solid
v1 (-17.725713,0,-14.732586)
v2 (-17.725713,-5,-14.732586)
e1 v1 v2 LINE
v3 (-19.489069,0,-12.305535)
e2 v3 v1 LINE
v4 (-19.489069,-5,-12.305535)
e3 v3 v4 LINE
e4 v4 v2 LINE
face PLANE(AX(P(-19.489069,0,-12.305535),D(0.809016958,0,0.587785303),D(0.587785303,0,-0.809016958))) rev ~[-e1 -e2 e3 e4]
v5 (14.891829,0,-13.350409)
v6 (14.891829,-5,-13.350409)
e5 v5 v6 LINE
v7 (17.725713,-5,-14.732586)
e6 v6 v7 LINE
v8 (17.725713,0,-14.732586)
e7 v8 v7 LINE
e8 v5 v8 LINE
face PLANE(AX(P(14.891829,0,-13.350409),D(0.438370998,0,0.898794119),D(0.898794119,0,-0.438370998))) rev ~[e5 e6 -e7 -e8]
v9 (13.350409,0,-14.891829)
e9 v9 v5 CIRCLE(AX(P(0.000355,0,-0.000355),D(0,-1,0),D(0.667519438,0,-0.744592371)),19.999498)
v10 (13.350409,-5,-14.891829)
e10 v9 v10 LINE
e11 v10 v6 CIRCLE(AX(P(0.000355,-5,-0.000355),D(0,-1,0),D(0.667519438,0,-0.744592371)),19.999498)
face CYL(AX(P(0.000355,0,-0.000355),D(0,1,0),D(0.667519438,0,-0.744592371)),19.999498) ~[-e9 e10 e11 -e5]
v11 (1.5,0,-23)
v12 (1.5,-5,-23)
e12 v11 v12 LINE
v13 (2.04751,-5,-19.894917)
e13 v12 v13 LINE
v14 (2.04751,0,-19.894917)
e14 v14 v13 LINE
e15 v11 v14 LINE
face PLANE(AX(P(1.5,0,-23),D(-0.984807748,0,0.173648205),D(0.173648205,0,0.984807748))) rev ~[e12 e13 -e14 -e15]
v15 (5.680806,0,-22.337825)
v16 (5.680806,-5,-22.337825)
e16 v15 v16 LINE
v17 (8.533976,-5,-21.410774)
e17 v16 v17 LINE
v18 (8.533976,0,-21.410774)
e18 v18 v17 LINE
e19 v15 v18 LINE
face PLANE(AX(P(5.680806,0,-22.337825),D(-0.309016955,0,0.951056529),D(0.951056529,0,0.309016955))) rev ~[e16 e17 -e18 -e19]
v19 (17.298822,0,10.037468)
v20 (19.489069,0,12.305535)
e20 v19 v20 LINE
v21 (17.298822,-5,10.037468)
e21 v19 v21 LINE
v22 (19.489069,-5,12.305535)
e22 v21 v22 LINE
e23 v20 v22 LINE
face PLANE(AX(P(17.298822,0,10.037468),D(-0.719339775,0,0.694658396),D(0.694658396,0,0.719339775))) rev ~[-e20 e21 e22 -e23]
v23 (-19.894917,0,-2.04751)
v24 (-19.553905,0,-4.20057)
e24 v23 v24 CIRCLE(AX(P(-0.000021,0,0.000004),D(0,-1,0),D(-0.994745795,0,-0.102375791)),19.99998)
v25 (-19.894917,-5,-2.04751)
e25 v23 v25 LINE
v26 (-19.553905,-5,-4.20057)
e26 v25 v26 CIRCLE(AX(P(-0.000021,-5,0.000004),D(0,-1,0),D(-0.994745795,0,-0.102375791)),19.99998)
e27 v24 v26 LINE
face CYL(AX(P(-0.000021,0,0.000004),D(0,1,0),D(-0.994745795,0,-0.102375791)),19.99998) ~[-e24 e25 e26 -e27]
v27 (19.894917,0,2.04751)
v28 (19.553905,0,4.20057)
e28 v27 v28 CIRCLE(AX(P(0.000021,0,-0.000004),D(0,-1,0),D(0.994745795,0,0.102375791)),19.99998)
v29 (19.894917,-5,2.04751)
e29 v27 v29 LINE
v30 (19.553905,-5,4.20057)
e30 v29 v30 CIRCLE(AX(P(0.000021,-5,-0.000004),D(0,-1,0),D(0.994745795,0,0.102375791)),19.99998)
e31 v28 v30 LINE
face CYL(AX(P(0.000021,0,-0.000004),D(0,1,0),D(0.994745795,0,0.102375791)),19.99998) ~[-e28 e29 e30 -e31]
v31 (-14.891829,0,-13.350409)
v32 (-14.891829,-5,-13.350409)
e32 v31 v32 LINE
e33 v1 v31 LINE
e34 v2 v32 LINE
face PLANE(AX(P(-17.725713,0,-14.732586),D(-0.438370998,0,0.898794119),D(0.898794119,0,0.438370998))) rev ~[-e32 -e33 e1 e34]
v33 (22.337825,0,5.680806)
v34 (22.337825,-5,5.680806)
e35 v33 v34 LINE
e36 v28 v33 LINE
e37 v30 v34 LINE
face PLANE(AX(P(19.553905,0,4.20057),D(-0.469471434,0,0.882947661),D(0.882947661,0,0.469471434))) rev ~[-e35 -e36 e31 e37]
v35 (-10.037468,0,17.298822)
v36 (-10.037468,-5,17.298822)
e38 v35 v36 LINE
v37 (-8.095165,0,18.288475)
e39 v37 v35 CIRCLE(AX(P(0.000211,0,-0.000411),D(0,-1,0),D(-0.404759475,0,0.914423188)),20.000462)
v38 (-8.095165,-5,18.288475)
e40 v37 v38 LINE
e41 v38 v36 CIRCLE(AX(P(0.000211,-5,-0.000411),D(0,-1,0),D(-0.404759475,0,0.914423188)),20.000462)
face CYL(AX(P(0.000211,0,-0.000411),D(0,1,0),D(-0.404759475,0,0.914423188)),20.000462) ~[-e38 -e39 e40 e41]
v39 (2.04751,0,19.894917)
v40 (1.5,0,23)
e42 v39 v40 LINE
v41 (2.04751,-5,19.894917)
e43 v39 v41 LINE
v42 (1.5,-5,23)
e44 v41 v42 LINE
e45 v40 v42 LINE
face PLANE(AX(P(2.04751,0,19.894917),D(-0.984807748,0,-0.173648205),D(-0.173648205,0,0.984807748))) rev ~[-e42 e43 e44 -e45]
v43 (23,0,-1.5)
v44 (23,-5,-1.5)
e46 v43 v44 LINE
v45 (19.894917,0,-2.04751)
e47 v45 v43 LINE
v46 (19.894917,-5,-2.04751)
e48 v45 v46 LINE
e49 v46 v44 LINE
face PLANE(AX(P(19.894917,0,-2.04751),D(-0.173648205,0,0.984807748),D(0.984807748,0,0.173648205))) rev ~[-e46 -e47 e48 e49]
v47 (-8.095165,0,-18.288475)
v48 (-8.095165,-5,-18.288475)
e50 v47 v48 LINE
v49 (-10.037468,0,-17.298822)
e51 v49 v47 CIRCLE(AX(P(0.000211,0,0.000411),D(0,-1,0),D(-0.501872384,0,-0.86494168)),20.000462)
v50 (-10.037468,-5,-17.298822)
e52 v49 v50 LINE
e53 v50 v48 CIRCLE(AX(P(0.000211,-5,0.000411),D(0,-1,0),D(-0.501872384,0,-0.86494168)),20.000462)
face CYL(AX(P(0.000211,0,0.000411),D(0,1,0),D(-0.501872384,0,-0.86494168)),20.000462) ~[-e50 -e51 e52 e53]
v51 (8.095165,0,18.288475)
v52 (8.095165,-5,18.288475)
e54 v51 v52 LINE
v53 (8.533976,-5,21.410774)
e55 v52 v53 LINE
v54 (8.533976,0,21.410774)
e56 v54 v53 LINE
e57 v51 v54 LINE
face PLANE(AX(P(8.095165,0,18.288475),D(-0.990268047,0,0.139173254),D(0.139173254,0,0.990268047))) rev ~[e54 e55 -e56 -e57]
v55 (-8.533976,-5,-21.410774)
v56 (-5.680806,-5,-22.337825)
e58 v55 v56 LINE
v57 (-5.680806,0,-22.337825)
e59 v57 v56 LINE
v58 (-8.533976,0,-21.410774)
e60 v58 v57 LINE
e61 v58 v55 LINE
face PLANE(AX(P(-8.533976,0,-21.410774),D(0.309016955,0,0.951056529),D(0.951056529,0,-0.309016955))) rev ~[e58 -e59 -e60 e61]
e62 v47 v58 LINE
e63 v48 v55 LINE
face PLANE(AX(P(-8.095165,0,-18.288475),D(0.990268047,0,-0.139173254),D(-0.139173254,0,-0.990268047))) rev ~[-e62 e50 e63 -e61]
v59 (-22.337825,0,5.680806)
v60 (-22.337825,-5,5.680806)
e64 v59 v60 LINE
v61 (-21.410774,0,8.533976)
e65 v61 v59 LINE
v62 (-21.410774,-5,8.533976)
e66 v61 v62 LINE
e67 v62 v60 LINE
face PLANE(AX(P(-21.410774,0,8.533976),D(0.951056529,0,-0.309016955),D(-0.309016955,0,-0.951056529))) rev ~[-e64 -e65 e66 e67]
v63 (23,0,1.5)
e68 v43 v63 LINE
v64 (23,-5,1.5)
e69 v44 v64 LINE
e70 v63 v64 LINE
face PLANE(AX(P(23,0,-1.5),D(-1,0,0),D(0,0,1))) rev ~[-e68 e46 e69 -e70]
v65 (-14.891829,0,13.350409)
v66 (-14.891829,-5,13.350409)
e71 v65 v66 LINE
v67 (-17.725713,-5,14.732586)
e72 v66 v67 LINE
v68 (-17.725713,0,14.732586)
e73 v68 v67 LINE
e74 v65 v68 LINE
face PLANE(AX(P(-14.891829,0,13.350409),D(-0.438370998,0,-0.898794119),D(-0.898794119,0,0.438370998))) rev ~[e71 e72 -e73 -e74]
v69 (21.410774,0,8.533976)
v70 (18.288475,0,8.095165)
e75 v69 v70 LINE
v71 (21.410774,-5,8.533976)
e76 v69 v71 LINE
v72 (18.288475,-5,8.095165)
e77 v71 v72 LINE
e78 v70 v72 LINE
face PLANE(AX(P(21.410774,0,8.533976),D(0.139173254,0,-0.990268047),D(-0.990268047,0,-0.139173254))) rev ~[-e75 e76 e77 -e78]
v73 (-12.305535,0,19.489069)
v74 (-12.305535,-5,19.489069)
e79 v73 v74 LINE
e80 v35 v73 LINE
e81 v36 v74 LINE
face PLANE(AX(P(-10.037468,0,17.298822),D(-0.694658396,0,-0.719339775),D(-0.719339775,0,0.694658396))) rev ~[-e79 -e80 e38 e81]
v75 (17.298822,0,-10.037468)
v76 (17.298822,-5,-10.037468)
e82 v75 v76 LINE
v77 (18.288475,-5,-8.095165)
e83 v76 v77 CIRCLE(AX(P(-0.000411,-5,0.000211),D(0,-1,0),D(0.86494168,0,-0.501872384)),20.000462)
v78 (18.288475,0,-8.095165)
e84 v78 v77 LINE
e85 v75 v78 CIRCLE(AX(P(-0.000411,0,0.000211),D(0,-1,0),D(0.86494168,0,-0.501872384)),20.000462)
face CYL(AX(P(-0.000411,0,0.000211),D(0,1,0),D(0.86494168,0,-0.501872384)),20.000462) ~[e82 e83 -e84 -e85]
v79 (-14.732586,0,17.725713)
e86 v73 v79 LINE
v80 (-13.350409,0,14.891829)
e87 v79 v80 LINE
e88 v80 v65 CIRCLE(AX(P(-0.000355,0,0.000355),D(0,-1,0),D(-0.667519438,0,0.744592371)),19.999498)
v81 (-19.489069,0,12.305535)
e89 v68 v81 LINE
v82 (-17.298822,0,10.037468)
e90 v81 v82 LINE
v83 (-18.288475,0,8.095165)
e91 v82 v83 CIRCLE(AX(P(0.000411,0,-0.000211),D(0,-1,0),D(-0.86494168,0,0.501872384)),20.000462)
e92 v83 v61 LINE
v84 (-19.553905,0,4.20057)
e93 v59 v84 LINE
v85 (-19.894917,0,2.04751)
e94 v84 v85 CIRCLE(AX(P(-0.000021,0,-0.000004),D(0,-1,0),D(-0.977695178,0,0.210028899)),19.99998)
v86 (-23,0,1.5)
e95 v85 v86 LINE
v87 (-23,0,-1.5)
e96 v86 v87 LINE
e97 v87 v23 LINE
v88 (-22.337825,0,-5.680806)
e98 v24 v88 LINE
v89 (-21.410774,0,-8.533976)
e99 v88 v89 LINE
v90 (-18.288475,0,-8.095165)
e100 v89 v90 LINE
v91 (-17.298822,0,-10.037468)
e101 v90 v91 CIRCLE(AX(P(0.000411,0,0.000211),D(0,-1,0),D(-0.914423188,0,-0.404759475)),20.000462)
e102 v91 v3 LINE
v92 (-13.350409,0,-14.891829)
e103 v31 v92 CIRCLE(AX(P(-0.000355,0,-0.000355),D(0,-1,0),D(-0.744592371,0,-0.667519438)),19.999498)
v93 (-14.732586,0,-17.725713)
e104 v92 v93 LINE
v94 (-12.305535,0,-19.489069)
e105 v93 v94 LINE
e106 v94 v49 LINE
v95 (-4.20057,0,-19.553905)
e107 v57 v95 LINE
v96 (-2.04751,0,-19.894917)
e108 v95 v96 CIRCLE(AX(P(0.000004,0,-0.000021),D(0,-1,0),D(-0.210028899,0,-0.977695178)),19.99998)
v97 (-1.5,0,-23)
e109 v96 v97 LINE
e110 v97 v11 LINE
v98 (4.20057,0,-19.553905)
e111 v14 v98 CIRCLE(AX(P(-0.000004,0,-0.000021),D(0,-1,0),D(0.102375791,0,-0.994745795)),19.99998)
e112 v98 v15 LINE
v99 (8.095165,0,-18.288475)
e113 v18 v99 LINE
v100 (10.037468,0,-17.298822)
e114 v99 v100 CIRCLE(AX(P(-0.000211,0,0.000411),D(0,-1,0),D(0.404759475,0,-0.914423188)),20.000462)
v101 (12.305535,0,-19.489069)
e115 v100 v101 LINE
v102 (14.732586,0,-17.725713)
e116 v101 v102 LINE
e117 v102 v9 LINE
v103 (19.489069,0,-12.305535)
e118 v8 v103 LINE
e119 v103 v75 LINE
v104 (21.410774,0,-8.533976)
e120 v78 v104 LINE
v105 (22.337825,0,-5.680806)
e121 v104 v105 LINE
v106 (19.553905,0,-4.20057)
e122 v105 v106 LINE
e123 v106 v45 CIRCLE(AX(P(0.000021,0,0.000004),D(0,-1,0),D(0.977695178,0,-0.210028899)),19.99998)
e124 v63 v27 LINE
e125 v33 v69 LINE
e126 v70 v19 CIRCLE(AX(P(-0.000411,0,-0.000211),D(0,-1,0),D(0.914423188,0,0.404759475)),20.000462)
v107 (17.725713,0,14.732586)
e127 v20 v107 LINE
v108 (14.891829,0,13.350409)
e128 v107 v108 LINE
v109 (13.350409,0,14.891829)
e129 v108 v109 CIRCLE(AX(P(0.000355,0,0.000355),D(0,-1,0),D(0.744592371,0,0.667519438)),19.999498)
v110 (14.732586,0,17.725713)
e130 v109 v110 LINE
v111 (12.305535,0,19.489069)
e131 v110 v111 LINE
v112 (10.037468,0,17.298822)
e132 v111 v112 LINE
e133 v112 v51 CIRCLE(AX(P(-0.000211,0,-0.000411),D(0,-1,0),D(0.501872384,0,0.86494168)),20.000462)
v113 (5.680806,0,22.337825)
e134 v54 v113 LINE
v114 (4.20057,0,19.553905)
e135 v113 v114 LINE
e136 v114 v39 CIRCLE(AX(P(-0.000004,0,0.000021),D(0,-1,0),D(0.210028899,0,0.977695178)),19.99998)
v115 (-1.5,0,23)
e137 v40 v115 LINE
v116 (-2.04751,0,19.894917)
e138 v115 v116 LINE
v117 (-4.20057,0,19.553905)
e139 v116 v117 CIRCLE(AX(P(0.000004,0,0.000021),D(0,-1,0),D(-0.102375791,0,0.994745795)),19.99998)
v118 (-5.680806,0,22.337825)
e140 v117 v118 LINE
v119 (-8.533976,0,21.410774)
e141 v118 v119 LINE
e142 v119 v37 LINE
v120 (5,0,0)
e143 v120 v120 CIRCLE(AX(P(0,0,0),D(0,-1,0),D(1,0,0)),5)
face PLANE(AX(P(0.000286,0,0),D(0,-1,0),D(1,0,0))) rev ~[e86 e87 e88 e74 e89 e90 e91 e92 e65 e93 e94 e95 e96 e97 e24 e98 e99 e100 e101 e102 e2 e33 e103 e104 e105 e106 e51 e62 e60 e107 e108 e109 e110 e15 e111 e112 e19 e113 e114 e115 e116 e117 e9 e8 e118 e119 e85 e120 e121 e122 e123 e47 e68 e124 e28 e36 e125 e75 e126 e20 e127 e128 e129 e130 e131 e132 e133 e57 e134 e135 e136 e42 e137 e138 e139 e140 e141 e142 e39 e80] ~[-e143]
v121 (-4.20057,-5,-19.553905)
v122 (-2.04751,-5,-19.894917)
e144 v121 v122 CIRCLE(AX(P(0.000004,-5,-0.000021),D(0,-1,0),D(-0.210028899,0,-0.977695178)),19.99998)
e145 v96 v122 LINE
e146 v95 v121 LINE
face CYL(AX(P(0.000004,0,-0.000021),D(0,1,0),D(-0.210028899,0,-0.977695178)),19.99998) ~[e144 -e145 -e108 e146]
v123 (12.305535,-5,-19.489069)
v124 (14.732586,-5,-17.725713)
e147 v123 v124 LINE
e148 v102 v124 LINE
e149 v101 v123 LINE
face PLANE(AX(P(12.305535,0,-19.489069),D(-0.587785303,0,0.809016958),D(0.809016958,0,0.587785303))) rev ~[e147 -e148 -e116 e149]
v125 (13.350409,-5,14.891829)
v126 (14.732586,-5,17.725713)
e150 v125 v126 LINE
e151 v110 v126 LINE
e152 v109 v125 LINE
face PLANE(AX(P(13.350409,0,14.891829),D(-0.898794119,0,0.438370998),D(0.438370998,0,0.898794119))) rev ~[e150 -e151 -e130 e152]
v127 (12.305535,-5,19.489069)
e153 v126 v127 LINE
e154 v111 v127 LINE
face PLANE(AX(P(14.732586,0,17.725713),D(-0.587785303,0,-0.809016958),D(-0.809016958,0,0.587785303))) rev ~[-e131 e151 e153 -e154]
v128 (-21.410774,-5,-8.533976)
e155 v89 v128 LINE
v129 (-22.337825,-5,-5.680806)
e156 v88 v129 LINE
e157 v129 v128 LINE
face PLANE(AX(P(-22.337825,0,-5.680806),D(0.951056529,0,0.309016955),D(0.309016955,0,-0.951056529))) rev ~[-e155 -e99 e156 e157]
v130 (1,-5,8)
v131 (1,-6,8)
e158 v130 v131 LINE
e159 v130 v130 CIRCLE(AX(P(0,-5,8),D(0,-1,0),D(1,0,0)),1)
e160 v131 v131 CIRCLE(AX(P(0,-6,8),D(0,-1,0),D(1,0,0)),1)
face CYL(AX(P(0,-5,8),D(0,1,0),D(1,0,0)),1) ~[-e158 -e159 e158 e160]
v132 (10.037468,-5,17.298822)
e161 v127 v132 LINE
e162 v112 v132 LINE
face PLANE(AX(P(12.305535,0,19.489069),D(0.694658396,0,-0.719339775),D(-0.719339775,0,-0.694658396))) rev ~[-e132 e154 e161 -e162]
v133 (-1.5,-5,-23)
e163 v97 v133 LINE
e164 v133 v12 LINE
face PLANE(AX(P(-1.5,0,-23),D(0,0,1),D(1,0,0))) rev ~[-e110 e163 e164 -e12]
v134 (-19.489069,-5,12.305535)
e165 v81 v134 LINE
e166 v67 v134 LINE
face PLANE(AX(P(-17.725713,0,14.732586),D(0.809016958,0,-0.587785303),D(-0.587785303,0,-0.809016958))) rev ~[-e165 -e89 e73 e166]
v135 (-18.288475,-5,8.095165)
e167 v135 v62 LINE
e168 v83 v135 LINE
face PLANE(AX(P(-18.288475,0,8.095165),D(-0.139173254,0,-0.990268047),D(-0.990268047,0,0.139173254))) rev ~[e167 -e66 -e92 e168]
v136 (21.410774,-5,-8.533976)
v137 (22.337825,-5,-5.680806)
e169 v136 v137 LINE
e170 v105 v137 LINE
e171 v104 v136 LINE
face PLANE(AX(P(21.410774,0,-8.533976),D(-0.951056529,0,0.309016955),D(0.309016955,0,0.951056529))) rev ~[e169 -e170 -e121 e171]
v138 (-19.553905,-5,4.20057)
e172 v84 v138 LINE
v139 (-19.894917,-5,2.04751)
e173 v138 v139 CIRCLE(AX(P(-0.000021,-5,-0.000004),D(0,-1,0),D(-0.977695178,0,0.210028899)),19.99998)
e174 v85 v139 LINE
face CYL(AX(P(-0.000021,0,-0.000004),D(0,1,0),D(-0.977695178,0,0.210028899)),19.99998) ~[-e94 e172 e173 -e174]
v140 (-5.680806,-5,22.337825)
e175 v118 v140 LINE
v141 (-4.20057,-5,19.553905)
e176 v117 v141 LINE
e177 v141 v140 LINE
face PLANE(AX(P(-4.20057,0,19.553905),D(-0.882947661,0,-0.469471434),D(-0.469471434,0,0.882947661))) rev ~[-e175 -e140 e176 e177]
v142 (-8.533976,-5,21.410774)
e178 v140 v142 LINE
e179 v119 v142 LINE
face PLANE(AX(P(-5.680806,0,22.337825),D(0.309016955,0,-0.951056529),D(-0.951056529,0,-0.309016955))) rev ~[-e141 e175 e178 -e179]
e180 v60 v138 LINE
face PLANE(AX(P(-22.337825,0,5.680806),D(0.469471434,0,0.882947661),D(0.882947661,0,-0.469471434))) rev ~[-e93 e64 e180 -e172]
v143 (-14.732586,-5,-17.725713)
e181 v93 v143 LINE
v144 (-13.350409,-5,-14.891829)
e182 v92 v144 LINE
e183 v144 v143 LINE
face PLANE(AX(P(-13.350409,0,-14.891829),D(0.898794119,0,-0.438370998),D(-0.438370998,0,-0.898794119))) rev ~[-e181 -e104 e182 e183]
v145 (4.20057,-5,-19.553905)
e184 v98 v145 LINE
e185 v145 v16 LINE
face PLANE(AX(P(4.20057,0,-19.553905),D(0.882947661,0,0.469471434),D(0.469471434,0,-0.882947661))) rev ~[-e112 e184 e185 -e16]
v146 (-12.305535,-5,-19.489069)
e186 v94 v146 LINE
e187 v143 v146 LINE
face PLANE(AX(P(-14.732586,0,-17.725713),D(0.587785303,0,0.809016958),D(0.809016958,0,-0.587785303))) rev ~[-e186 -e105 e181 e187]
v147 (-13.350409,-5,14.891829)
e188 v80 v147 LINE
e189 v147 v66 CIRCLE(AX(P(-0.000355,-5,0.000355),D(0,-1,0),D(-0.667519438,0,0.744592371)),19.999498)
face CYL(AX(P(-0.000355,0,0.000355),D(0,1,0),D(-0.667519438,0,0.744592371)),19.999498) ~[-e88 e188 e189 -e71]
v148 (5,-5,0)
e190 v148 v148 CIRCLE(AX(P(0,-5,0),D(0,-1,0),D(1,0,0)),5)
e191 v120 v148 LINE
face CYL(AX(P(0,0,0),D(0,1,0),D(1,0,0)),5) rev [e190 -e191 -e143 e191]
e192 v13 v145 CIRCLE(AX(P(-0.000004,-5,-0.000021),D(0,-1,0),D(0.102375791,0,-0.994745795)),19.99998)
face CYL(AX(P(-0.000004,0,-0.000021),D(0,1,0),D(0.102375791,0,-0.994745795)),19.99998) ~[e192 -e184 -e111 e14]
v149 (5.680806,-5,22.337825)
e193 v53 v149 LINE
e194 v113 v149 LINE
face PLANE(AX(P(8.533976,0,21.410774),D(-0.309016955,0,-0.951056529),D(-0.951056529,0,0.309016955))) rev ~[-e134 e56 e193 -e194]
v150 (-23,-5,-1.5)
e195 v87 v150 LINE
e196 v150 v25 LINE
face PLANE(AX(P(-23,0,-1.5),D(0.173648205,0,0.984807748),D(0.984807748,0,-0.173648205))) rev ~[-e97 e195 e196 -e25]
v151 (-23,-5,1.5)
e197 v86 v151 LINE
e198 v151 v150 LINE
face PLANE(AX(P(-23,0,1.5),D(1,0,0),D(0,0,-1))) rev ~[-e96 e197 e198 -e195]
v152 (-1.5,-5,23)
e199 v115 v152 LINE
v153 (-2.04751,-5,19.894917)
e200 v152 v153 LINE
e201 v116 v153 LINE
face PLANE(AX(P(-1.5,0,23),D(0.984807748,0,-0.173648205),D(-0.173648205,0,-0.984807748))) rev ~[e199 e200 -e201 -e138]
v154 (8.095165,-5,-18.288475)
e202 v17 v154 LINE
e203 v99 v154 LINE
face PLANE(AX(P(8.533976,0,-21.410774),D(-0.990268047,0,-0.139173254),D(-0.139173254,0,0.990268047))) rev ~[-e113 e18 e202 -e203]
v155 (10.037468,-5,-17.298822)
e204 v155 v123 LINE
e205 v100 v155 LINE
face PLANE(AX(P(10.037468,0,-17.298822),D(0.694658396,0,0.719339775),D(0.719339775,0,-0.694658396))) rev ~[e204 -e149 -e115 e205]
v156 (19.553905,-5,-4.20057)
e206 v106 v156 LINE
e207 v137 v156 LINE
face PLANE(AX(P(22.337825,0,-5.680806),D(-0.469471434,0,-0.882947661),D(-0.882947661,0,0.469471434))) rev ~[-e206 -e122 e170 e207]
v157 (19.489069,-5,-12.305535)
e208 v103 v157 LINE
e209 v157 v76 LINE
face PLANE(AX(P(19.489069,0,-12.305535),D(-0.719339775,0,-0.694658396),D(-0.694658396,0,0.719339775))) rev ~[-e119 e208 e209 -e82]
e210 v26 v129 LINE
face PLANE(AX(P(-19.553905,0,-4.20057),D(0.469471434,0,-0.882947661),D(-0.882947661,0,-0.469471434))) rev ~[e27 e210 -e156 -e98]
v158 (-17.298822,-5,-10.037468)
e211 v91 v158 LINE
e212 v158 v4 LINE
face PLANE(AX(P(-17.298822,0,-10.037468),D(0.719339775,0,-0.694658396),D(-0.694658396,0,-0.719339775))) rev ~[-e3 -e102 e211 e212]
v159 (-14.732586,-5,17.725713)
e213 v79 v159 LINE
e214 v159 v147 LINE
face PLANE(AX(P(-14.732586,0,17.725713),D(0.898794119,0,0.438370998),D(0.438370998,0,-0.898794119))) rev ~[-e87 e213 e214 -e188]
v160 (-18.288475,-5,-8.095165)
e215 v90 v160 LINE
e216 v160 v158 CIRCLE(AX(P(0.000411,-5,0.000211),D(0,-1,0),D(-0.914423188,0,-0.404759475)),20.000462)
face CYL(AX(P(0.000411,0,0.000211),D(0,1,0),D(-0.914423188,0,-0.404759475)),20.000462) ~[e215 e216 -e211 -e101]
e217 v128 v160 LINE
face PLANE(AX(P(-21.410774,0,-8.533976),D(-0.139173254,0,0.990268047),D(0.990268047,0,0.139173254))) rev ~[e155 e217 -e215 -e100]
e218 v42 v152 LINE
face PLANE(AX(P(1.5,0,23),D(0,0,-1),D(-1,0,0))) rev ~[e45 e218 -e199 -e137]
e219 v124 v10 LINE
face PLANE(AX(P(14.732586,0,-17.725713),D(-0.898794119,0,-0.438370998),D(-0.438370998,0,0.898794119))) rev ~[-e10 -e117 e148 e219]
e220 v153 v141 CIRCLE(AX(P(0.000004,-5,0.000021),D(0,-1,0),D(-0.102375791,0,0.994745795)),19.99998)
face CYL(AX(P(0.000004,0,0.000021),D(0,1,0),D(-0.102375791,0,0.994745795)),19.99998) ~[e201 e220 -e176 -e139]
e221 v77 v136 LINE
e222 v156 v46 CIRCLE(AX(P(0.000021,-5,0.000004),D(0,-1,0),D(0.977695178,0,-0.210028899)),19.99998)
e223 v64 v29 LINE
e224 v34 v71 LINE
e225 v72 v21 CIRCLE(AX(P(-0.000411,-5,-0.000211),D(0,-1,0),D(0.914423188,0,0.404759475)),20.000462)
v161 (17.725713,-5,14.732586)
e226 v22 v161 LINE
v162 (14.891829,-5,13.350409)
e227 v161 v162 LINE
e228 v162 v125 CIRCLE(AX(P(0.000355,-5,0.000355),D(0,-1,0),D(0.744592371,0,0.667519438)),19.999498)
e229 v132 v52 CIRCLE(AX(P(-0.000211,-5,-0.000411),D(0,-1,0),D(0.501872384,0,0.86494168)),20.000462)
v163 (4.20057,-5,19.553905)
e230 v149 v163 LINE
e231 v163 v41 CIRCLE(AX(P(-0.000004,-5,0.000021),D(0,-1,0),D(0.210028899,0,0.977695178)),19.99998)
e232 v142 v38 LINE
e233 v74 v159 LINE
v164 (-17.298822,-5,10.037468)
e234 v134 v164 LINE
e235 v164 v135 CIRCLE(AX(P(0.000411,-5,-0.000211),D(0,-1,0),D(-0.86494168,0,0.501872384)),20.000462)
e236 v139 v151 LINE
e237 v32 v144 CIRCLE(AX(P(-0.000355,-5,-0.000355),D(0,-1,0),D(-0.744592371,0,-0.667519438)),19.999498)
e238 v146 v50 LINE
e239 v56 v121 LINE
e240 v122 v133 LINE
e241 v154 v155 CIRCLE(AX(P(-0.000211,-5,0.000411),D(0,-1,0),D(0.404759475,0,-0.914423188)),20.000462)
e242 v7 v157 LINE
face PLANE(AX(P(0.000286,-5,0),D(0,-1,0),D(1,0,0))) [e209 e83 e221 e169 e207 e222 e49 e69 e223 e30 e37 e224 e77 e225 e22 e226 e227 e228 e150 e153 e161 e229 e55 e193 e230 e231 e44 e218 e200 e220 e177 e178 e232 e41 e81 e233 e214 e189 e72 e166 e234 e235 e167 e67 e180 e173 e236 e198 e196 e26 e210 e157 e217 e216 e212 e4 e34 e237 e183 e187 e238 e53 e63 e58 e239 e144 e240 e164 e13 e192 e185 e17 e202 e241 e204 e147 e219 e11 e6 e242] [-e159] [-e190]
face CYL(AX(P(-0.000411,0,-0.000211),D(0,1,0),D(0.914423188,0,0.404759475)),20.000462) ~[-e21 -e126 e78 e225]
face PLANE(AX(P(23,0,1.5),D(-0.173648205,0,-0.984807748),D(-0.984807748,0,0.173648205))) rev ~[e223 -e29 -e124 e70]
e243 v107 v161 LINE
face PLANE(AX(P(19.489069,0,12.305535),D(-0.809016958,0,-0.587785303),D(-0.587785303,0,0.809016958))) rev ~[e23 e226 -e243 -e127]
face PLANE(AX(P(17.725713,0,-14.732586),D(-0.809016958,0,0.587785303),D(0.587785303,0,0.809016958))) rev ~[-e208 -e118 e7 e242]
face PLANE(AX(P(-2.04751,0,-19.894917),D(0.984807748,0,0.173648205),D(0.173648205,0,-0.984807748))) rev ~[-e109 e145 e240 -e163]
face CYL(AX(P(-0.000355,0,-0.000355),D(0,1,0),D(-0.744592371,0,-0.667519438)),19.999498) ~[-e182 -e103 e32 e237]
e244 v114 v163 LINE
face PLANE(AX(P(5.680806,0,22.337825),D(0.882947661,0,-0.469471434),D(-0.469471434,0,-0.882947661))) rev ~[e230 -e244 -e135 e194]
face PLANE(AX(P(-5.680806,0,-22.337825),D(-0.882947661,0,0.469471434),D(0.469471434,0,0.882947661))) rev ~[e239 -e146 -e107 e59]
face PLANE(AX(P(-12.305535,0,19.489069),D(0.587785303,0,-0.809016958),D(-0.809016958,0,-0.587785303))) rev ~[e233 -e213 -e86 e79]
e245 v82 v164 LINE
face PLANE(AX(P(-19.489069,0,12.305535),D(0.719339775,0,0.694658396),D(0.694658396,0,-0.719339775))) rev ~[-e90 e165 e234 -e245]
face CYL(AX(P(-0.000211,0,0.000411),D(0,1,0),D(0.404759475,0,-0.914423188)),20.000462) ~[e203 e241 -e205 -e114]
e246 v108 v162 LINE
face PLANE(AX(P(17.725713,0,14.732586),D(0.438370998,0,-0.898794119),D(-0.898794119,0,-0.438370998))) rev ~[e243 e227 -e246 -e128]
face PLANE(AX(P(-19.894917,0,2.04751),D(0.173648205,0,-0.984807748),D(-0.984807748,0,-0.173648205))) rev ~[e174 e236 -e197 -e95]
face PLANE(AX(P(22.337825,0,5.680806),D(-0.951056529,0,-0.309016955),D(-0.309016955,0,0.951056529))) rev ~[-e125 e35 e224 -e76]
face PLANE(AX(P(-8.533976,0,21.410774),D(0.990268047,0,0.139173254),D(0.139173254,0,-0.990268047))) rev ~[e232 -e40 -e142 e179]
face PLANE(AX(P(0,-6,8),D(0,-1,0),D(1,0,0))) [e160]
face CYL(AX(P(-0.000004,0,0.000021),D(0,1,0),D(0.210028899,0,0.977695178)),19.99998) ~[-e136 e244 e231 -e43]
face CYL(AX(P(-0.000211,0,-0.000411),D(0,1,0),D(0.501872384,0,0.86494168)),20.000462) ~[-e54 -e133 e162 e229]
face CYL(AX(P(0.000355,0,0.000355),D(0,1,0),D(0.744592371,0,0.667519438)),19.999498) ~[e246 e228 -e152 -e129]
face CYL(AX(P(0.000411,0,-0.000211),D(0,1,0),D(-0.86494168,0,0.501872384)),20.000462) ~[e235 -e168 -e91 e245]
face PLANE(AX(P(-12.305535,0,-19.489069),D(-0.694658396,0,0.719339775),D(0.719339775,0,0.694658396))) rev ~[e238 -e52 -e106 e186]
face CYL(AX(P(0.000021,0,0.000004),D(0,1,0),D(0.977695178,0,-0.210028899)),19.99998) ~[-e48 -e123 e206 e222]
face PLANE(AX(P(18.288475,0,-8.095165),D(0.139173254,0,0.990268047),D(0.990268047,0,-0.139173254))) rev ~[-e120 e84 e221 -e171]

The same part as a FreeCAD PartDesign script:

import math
import FreeCAD as App
import Part
import Sketcher
Q = App.Units.Quantity

doc = App.newDocument("Part")
params = doc.addObject("Spreadsheet::Sheet", "Params")
for row, (alias, value) in enumerate([
    ("sketch1_diameter", "10 mm"),
    ("sketch1_width", "3 mm"),
    ("sketch1_length", "3 mm"),
    ("pad1_length", "5 mm"),
    ("sketch2_diameter", "2 mm"),
    ("pad2_length", "1 mm"),
], start=1):
    params.set(f"A{row}", alias)
    params.set(f"B{row}", "=" + value)
    params.setAlias(f"B{row}", alias)

body = doc.addObject("PartDesign::Body", "Body")

sketch1 = body.newObject("Sketcher::SketchObject", "Sketch")
sketch1.AttachmentSupport = (doc.getObject("XZ_Plane"), [""])
sketch1.MapMode = "FlatFace"
sketch1.addGeometry([
    Part.ArcOfCircle(Part.Circle(App.Vector(0.000021, 0.000004, 0), App.Vector(0, 0, 1), 19.99998), math.radians(-12.124046), math.radians(-5.875996)),
    Part.LineSegment(App.Vector(19.894917, -2.04751, 0), App.Vector(23, -1.5, 0)),
    Part.LineSegment(App.Vector(23, -1.5, 0), App.Vector(23, 1.5, 0)),
    Part.LineSegment(App.Vector(23, 1.5, 0), App.Vector(19.894917, 2.04751, 0)),
    Part.ArcOfCircle(Part.Circle(App.Vector(0.000021, -0.000004, 0), App.Vector(0, 0, 1), 19.99998), math.radians(5.875996), math.radians(12.124046)),
    Part.LineSegment(App.Vector(19.553905, 4.20057, 0), App.Vector(22.337825, 5.680806, 0)),
    Part.LineSegment(App.Vector(22.337825, 5.680806, 0), App.Vector(21.410774, 8.533976, 0)),
    Part.LineSegment(App.Vector(21.410774, 8.533976, 0), App.Vector(18.288475, 8.095165, 0)),
    Part.ArcOfCircle(Part.Circle(App.Vector(-0.000411, -0.000211, 0), App.Vector(0, 0, 1), 20.000462), math.radians(23.876056), math.radians(30.123953)),
    Part.LineSegment(App.Vector(17.298822, 10.037468, 0), App.Vector(19.489069, 12.305535, 0)),
    Part.LineSegment(App.Vector(19.489069, 12.305535, 0), App.Vector(17.725713, 14.732586, 0)),
    Part.LineSegment(App.Vector(17.725713, 14.732586, 0), App.Vector(14.891829, 13.350409, 0)),
    Part.ArcOfCircle(Part.Circle(App.Vector(0.000355, 0.000355, 0), App.Vector(0, 0, 1), 19.999498), math.radians(41.875901), math.radians(48.124099)),
    Part.LineSegment(App.Vector(13.350409, 14.891829, 0), App.Vector(14.732586, 17.725713, 0)),
    Part.LineSegment(App.Vector(14.732586, 17.725713, 0), App.Vector(12.305535, 19.489069, 0)),
    Part.LineSegment(App.Vector(12.305535, 19.489069, 0), App.Vector(10.037468, 17.298822, 0)),
    Part.ArcOfCircle(Part.Circle(App.Vector(-0.000211, -0.000411, 0), App.Vector(0, 0, 1), 20.000462), math.radians(59.876047), math.radians(66.123944)),
    Part.LineSegment(App.Vector(8.095165, 18.288475, 0), App.Vector(8.533976, 21.410774, 0)),
    Part.LineSegment(App.Vector(8.533976, 21.410774, 0), App.Vector(5.680806, 22.337825, 0)),
    Part.LineSegment(App.Vector(5.680806, 22.337825, 0), App.Vector(4.20057, 19.553905, 0)),
    Part.ArcOfCircle(Part.Circle(App.Vector(-0.000004, 0.000021, 0), App.Vector(0, 0, 1), 19.99998), math.radians(77.875954), math.radians(84.124004)),
    Part.LineSegment(App.Vector(2.04751, 19.894917, 0), App.Vector(1.5, 23, 0)),
    Part.LineSegment(App.Vector(1.5, 23, 0), App.Vector(-1.5, 23, 0)),
    Part.LineSegment(App.Vector(-1.5, 23, 0), App.Vector(-2.04751, 19.894917, 0)),
    Part.ArcOfCircle(Part.Circle(App.Vector(0.000004, 0.000021, 0), App.Vector(0, 0, 1), 19.99998), math.radians(95.875996), math.radians(102.124046)),
    Part.LineSegment(App.Vector(-4.20057, 19.553905, 0), App.Vector(-5.680806, 22.337825, 0)),
    Part.LineSegment(App.Vector(-5.680806, 22.337825, 0), App.Vector(-8.533976, 21.410774, 0)),
    Part.LineSegment(App.Vector(-8.533976, 21.410774, 0), App.Vector(-8.095165, 18.288475, 0)),
    Part.ArcOfCircle(Part.Circle(App.Vector(0.000211, -0.000411, 0), App.Vector(0, 0, 1), 20.000462), math.radians(113.876056), math.radians(120.123953)),
    Part.LineSegment(App.Vector(-10.037468, 17.298822, 0), App.Vector(-12.305535, 19.489069, 0)),
    Part.LineSegment(App.Vector(-12.305535, 19.489069, 0), App.Vector(-14.732586, 17.725713, 0)),
    Part.LineSegment(App.Vector(-14.732586, 17.725713, 0), App.Vector(-13.350409, 14.891829, 0)),
    Part.ArcOfCircle(Part.Circle(App.Vector(-0.000355, 0.000355, 0), App.Vector(0, 0, 1), 19.999498), math.radians(131.875901), math.radians(138.124099)),
    Part.LineSegment(App.Vector(-14.891829, 13.350409, 0), App.Vector(-17.725713, 14.732586, 0)),
    Part.LineSegment(App.Vector(-17.725713, 14.732586, 0), App.Vector(-19.489069, 12.305535, 0)),
    Part.LineSegment(App.Vector(-19.489069, 12.305535, 0), App.Vector(-17.298822, 10.037468, 0)),
    Part.ArcOfCircle(Part.Circle(App.Vector(0.000411, -0.000211, 0), App.Vector(0, 0, 1), 20.000462), math.radians(149.876047), math.radians(156.123944)),
    Part.LineSegment(App.Vector(-18.288475, 8.095165, 0), App.Vector(-21.410774, 8.533976, 0)),
    Part.LineSegment(App.Vector(-21.410774, 8.533976, 0), App.Vector(-22.337825, 5.680806, 0)),
    Part.LineSegment(App.Vector(-22.337825, 5.680806, 0), App.Vector(-19.553905, 4.20057, 0)),
    Part.ArcOfCircle(Part.Circle(App.Vector(-0.000021, -0.000004, 0), App.Vector(0, 0, 1), 19.99998), math.radians(167.875954), math.radians(174.124004)),
    Part.LineSegment(App.Vector(-19.894917, 2.04751, 0), App.Vector(-23, 1.5, 0)),
    Part.LineSegment(App.Vector(-23, 1.5, 0), App.Vector(-23, -1.5, 0)),
    Part.LineSegment(App.Vector(-23, -1.5, 0), App.Vector(-19.894917, -2.04751, 0)),
    Part.ArcOfCircle(Part.Circle(App.Vector(-0.000021, 0.000004, 0), App.Vector(0, 0, 1), 19.99998), math.radians(-174.124004), math.radians(-167.875954)),
    Part.LineSegment(App.Vector(-19.553905, -4.20057, 0), App.Vector(-22.337825, -5.680806, 0)),
    Part.LineSegment(App.Vector(-22.337825, -5.680806, 0), App.Vector(-21.410774, -8.533976, 0)),
    Part.LineSegment(App.Vector(-21.410774, -8.533976, 0), App.Vector(-18.288475, -8.095165, 0)),
    Part.ArcOfCircle(Part.Circle(App.Vector(0.000411, 0.000211, 0), App.Vector(0, 0, 1), 20.000462), math.radians(-156.123944), math.radians(-149.876047)),
    Part.LineSegment(App.Vector(-17.298822, -10.037468, 0), App.Vector(-19.489069, -12.305535, 0)),
    Part.LineSegment(App.Vector(-19.489069, -12.305535, 0), App.Vector(-17.725713, -14.732586, 0)),
    Part.LineSegment(App.Vector(-17.725713, -14.732586, 0), App.Vector(-14.891829, -13.350409, 0)),
    Part.ArcOfCircle(Part.Circle(App.Vector(-0.000355, -0.000355, 0), App.Vector(0, 0, 1), 19.999498), math.radians(-138.124099), math.radians(-131.875901)),
    Part.LineSegment(App.Vector(-13.350409, -14.891829, 0), App.Vector(-14.732586, -17.725713, 0)),
    Part.LineSegment(App.Vector(-14.732586, -17.725713, 0), App.Vector(-12.305535, -19.489069, 0)),
    Part.LineSegment(App.Vector(-12.305535, -19.489069, 0), App.Vector(-10.037468, -17.298822, 0)),
    Part.ArcOfCircle(Part.Circle(App.Vector(0.000211, 0.000411, 0), App.Vector(0, 0, 1), 20.000462), math.radians(-120.123953), math.radians(-113.876056)),
    Part.LineSegment(App.Vector(-8.095165, -18.288475, 0), App.Vector(-8.533976, -21.410774, 0)),
    Part.LineSegment(App.Vector(-8.533976, -21.410774, 0), App.Vector(-5.680806, -22.337825, 0)),
    Part.LineSegment(App.Vector(-5.680806, -22.337825, 0), App.Vector(-4.20057, -19.553905, 0)),
    Part.ArcOfCircle(Part.Circle(App.Vector(0.000004, -0.000021, 0), App.Vector(0, 0, 1), 19.99998), math.radians(-102.124046), math.radians(-95.875996)),
    Part.LineSegment(App.Vector(-2.04751, -19.894917, 0), App.Vector(-1.5, -23, 0)),
    Part.LineSegment(App.Vector(-1.5, -23, 0), App.Vector(1.5, -23, 0)),
    Part.LineSegment(App.Vector(1.5, -23, 0), App.Vector(2.04751, -19.894917, 0)),
    Part.ArcOfCircle(Part.Circle(App.Vector(-0.000004, -0.000021, 0), App.Vector(0, 0, 1), 19.99998), math.radians(-84.124004), math.radians(-77.875954)),
    Part.LineSegment(App.Vector(4.20057, -19.553905, 0), App.Vector(5.680806, -22.337825, 0)),
    Part.LineSegment(App.Vector(5.680806, -22.337825, 0), App.Vector(8.533976, -21.410774, 0)),
    Part.LineSegment(App.Vector(8.533976, -21.410774, 0), App.Vector(8.095165, -18.288475, 0)),
    Part.ArcOfCircle(Part.Circle(App.Vector(-0.000211, 0.000411, 0), App.Vector(0, 0, 1), 20.000462), math.radians(-66.123944), math.radians(-59.876047)),
    Part.LineSegment(App.Vector(10.037468, -17.298822, 0), App.Vector(12.305535, -19.489069, 0)),
    Part.LineSegment(App.Vector(12.305535, -19.489069, 0), App.Vector(14.732586, -17.725713, 0)),
    Part.LineSegment(App.Vector(14.732586, -17.725713, 0), App.Vector(13.350409, -14.891829, 0)),
    Part.ArcOfCircle(Part.Circle(App.Vector(0.000355, -0.000355, 0), App.Vector(0, 0, 1), 19.999498), math.radians(-48.124099), math.radians(-41.875901)),
    Part.LineSegment(App.Vector(14.891829, -13.350409, 0), App.Vector(17.725713, -14.732586, 0)),
    Part.LineSegment(App.Vector(17.725713, -14.732586, 0), App.Vector(19.489069, -12.305535, 0)),
    Part.LineSegment(App.Vector(19.489069, -12.305535, 0), App.Vector(17.298822, -10.037468, 0)),
    Part.ArcOfCircle(Part.Circle(App.Vector(-0.000411, 0.000211, 0), App.Vector(0, 0, 1), 20.000462), math.radians(-30.123953), math.radians(-23.876056)),
    Part.LineSegment(App.Vector(18.288475, -8.095165, 0), App.Vector(21.410774, -8.533976, 0)),
    Part.LineSegment(App.Vector(21.410774, -8.533976, 0), App.Vector(22.337825, -5.680806, 0)),
    Part.LineSegment(App.Vector(22.337825, -5.680806, 0), App.Vector(19.553905, -4.20057, 0)),
    Part.Circle(App.Vector(0, 0, 0), App.Vector(0, 0, 1), 5),
], False)
sketch1.addConstraint([
    Sketcher.Constraint("Coincident", 0, 2, 1, 1),
    Sketcher.Constraint("Coincident", 1, 2, 2, 1),
    Sketcher.Constraint("Coincident", 2, 2, 3, 1),
    Sketcher.Constraint("Coincident", 3, 2, 4, 1),
    Sketcher.Constraint("Coincident", 4, 2, 5, 1),
    Sketcher.Constraint("Coincident", 5, 2, 6, 1),
    Sketcher.Constraint("Coincident", 6, 2, 7, 1),
    Sketcher.Constraint("Coincident", 7, 2, 8, 1),
    Sketcher.Constraint("Coincident", 8, 2, 9, 1),
    Sketcher.Constraint("Coincident", 9, 2, 10, 1),
    Sketcher.Constraint("Coincident", 10, 2, 11, 1),
    Sketcher.Constraint("Coincident", 11, 2, 12, 1),
    Sketcher.Constraint("Coincident", 12, 2, 13, 1),
    Sketcher.Constraint("Coincident", 13, 2, 14, 1),
    Sketcher.Constraint("Coincident", 14, 2, 15, 1),
    Sketcher.Constraint("Coincident", 15, 2, 16, 1),
    Sketcher.Constraint("Coincident", 16, 2, 17, 1),
    Sketcher.Constraint("Coincident", 17, 2, 18, 1),
    Sketcher.Constraint("Coincident", 18, 2, 19, 1),
    Sketcher.Constraint("Coincident", 19, 2, 20, 1),
    Sketcher.Constraint("Coincident", 20, 2, 21, 1),
    Sketcher.Constraint("Coincident", 21, 2, 22, 1),
    Sketcher.Constraint("Coincident", 22, 2, 23, 1),
    Sketcher.Constraint("Coincident", 23, 2, 24, 1),
    Sketcher.Constraint("Coincident", 24, 2, 25, 1),
    Sketcher.Constraint("Coincident", 25, 2, 26, 1),
    Sketcher.Constraint("Coincident", 26, 2, 27, 1),
    Sketcher.Constraint("Coincident", 27, 2, 28, 1),
    Sketcher.Constraint("Coincident", 28, 2, 29, 1),
    Sketcher.Constraint("Coincident", 29, 2, 30, 1),
    Sketcher.Constraint("Coincident", 30, 2, 31, 1),
    Sketcher.Constraint("Coincident", 31, 2, 32, 1),
    Sketcher.Constraint("Coincident", 32, 2, 33, 1),
    Sketcher.Constraint("Coincident", 33, 2, 34, 1),
    Sketcher.Constraint("Coincident", 34, 2, 35, 1),
    Sketcher.Constraint("Coincident", 35, 2, 36, 1),
    Sketcher.Constraint("Coincident", 36, 2, 37, 1),
    Sketcher.Constraint("Coincident", 37, 2, 38, 1),
    Sketcher.Constraint("Coincident", 38, 2, 39, 1),
    Sketcher.Constraint("Coincident", 39, 2, 40, 1),
    Sketcher.Constraint("Coincident", 40, 2, 41, 1),
    Sketcher.Constraint("Coincident", 41, 2, 42, 1),
    Sketcher.Constraint("Coincident", 42, 2, 43, 1),
    Sketcher.Constraint("Coincident", 43, 2, 44, 1),
    Sketcher.Constraint("Coincident", 44, 2, 45, 1),
    Sketcher.Constraint("Coincident", 45, 2, 46, 1),
    Sketcher.Constraint("Coincident", 46, 2, 47, 1),
    Sketcher.Constraint("Coincident", 47, 2, 48, 1),
    Sketcher.Constraint("Coincident", 48, 2, 49, 1),
    Sketcher.Constraint("Coincident", 49, 2, 50, 1),
    Sketcher.Constraint("Coincident", 50, 2, 51, 1),
    Sketcher.Constraint("Coincident", 51, 2, 52, 1),
    Sketcher.Constraint("Coincident", 52, 2, 53, 1),
    Sketcher.Constraint("Coincident", 53, 2, 54, 1),
    Sketcher.Constraint("Coincident", 54, 2, 55, 1),
    Sketcher.Constraint("Coincident", 55, 2, 56, 1),
    Sketcher.Constraint("Coincident", 56, 2, 57, 1),
    Sketcher.Constraint("Coincident", 57, 2, 58, 1),
    Sketcher.Constraint("Coincident", 58, 2, 59, 1),
    Sketcher.Constraint("Coincident", 59, 2, 60, 1),
    Sketcher.Constraint("Coincident", 60, 2, 61, 1),
    Sketcher.Constraint("Coincident", 61, 2, 62, 1),
    Sketcher.Constraint("Coincident", 62, 2, 63, 1),
    Sketcher.Constraint("Coincident", 63, 2, 64, 1),
    Sketcher.Constraint("Coincident", 64, 2, 65, 1),
    Sketcher.Constraint("Coincident", 65, 2, 66, 1),
    Sketcher.Constraint("Coincident", 66, 2, 67, 1),
    Sketcher.Constraint("Coincident", 67, 2, 68, 1),
    Sketcher.Constraint("Coincident", 68, 2, 69, 1),
    Sketcher.Constraint("Coincident", 69, 2, 70, 1),
    Sketcher.Constraint("Coincident", 70, 2, 71, 1),
    Sketcher.Constraint("Coincident", 71, 2, 72, 1),
    Sketcher.Constraint("Coincident", 72, 2, 73, 1),
    Sketcher.Constraint("Coincident", 73, 2, 74, 1),
    Sketcher.Constraint("Coincident", 74, 2, 75, 1),
    Sketcher.Constraint("Coincident", 75, 2, 76, 1),
    Sketcher.Constraint("Coincident", 76, 2, 77, 1),
    Sketcher.Constraint("Coincident", 77, 2, 78, 1),
    Sketcher.Constraint("Coincident", 78, 2, 79, 1),
    Sketcher.Constraint("Coincident", 79, 2, 0, 1),
    Sketcher.Constraint("Vertical", 2),
    Sketcher.Constraint("Horizontal", 22),
    Sketcher.Constraint("Vertical", 42),
    Sketcher.Constraint("Horizontal", 62),
    Sketcher.Constraint("Coincident", 80, 3, -1, 1),
    Sketcher.Constraint("Coincident", 4, 3, 0, 3),
    Sketcher.Constraint("Coincident", 24, 3, 20, 3),
    Sketcher.Constraint("Coincident", 44, 3, 40, 3),
    Sketcher.Constraint("Coincident", 64, 3, 60, 3),
    Sketcher.Constraint("Equal", 0, 4),
    Sketcher.Constraint("Equal", 8, 16),
    Sketcher.Constraint("Equal", 4, 20),
    Sketcher.Constraint("Equal", 20, 24),
    Sketcher.Constraint("Equal", 16, 28),
    Sketcher.Constraint("Equal", 12, 32),
    Sketcher.Constraint("Equal", 28, 36),
    Sketcher.Constraint("Equal", 24, 40),
    Sketcher.Constraint("Equal", 40, 44),
    Sketcher.Constraint("Equal", 36, 48),
    Sketcher.Constraint("Equal", 32, 52),
    Sketcher.Constraint("Equal", 48, 56),
    Sketcher.Constraint("Equal", 44, 60),
    Sketcher.Constraint("Equal", 60, 64),
    Sketcher.Constraint("Equal", 56, 68),
    Sketcher.Constraint("Equal", 52, 72),
    Sketcher.Constraint("Equal", 68, 76),
    Sketcher.Constraint("Symmetric", 0, 3, 40, 3, -1, 1),
    Sketcher.Constraint("Symmetric", 8, 3, 48, 3, -1, 1),
    Sketcher.Constraint("Symmetric", 12, 3, 52, 3, -1, 1),
    Sketcher.Constraint("Symmetric", 16, 3, 56, 3, -1, 1),
    Sketcher.Constraint("Symmetric", 20, 3, 60, 3, -1, 1),
    Sketcher.Constraint("Symmetric", 28, 3, 68, 3, -1, 1),
    Sketcher.Constraint("Symmetric", 32, 3, 72, 3, -1, 1),
    Sketcher.Constraint("Symmetric", 36, 3, 76, 3, -1, 1),
    Sketcher.Constraint("Symmetric", 1, 2, 41, 2, -1, 1),
    Sketcher.Constraint("Symmetric", 5, 2, 45, 2, -1, 1),
    Sketcher.Constraint("Symmetric", 6, 2, 46, 2, -1, 1),
    Sketcher.Constraint("Symmetric", 9, 2, 49, 2, -1, 1),
    Sketcher.Constraint("Symmetric", 10, 2, 50, 2, -1, 1),
    Sketcher.Constraint("Symmetric", 13, 2, 53, 2, -1, 1),
    Sketcher.Constraint("Symmetric", 14, 2, 54, 2, -1, 1),
    Sketcher.Constraint("Symmetric", 17, 2, 57, 2, -1, 1),
    Sketcher.Constraint("Symmetric", 18, 2, 58, 2, -1, 1),
    Sketcher.Constraint("Symmetric", 21, 2, 61, 2, -1, 1),
    Sketcher.Constraint("Symmetric", 25, 2, 65, 2, -1, 1),
    Sketcher.Constraint("Symmetric", 26, 2, 66, 2, -1, 1),
    Sketcher.Constraint("Symmetric", 29, 2, 69, 2, -1, 1),
    Sketcher.Constraint("Symmetric", 30, 2, 70, 2, -1, 1),
    Sketcher.Constraint("Symmetric", 33, 2, 73, 2, -1, 1),
    Sketcher.Constraint("Symmetric", 34, 2, 74, 2, -1, 1),
    Sketcher.Constraint("Symmetric", 37, 2, 77, 2, -1, 1),
    Sketcher.Constraint("Symmetric", 38, 2, 78, 2, -1, 1),
    Sketcher.Constraint("Symmetric", 16, 3, 28, 3, -2),
    Sketcher.Constraint("Symmetric", 12, 3, 32, 3, -2),
    Sketcher.Constraint("Symmetric", 8, 3, 36, 3, -2),
    Sketcher.Constraint("Symmetric", 20, 2, 23, 2, -2),
    Sketcher.Constraint("Symmetric", 18, 2, 25, 2, -2),
    Sketcher.Constraint("Symmetric", 17, 2, 26, 2, -2),
    Sketcher.Constraint("Symmetric", 14, 2, 29, 2, -2),
    Sketcher.Constraint("Symmetric", 13, 2, 30, 2, -2),
    Sketcher.Constraint("Symmetric", 10, 2, 33, 2, -2),
    Sketcher.Constraint("Symmetric", 9, 2, 34, 2, -2),
    Sketcher.Constraint("Symmetric", 6, 2, 37, 2, -2),
    Sketcher.Constraint("Symmetric", 5, 2, 38, 2, -2),
    Sketcher.Constraint("Symmetric", 4, 2, 39, 2, -2),
    Sketcher.Constraint("Perpendicular", 1, 21),
    Sketcher.Constraint("Perpendicular", 3, 23),
    Sketcher.Constraint("Perpendicular", 5, 25),
    Sketcher.Constraint("Perpendicular", 6, 26),
    Sketcher.Constraint("Perpendicular", 7, 27),
    Sketcher.Constraint("Perpendicular", 9, 29),
    Sketcher.Constraint("Perpendicular", 10, 30),
    Sketcher.Constraint("Perpendicular", 11, 31),
    Sketcher.Constraint("Perpendicular", 13, 33),
    Sketcher.Constraint("Perpendicular", 15, 35),
    Sketcher.Constraint("Perpendicular", 17, 37),
    Sketcher.Constraint("Perpendicular", 19, 39),
    Sketcher.Constraint("Perpendicular", 21, 41),
    Sketcher.Constraint("Perpendicular", 23, 43),
    Sketcher.Constraint("Perpendicular", 25, 45),
    Sketcher.Constraint("Perpendicular", 27, 47),
    Sketcher.Constraint("Perpendicular", 29, 49),
    Sketcher.Constraint("Perpendicular", 31, 51),
    Sketcher.Constraint("Perpendicular", 33, 53),
    Sketcher.Constraint("Perpendicular", 35, 55),
    Sketcher.Constraint("Perpendicular", 37, 57),
    Sketcher.Constraint("Perpendicular", 39, 59),
    Sketcher.Constraint("Perpendicular", 41, 61),
    Sketcher.Constraint("Perpendicular", 43, 63),
    Sketcher.Constraint("Perpendicular", 45, 65),
    Sketcher.Constraint("Perpendicular", 47, 67),
    Sketcher.Constraint("Perpendicular", 49, 69),
    Sketcher.Constraint("Perpendicular", 51, 71),
    Sketcher.Constraint("Perpendicular", 53, 73),
    Sketcher.Constraint("Perpendicular", 55, 75),
    Sketcher.Constraint("Perpendicular", 57, 77),
    Sketcher.Constraint("Perpendicular", 59, 79),
    Sketcher.Constraint("Horizontal", 16, 2, 27, 2),
    Sketcher.Constraint("Horizontal", 15, 2, 28, 2),
    Sketcher.Constraint("Horizontal", 12, 2, 31, 2),
    Sketcher.Constraint("Horizontal", 3, 2, 40, 2),
    Sketcher.Constraint("Horizontal", 2, 2, 41, 2),
    Sketcher.Constraint("Horizontal", 1, 2, 42, 2),
    Sketcher.Constraint("Horizontal", 60, 2, 63, 2),
    Sketcher.Constraint("Equal", 62, 2),
    Sketcher.Constraint("Equal", 3, 5),
    Sketcher.Constraint("Equal", 5, 7),
    Sketcher.Constraint("Equal", 7, 9),
    Sketcher.Constraint("Equal", 6, 10),
    Sketcher.Constraint("Equal", 9, 11),
    Sketcher.Constraint("Equal", 11, 13),
    Sketcher.Constraint("Equal", 10, 14),
    Sketcher.Constraint("Equal", 13, 15),
    Sketcher.Constraint("Equal", 15, 17),
    Sketcher.Constraint("Equal", 14, 18),
    Sketcher.Constraint("Equal", 17, 19),
    Sketcher.Constraint("Equal", 19, 21),
    Sketcher.Constraint("Diameter", 80, Q("10 mm")),
    Sketcher.Constraint("DistanceX", 22, 2, 22, 1, Q("3 mm")),
    Sketcher.Constraint("Angle", 1, Q("10.000002 deg")),
    Sketcher.Constraint("Angle", 5, Q("27.999992 deg")),
    Sketcher.Constraint("Angle", 6, Q("107.999998 deg")),
    Sketcher.Constraint("Angle", 7, Q("-171.999991 deg")),
    Sketcher.Constraint("Angle", 9, Q("45.999998 deg")),
    Sketcher.Constraint("Angle", 10, Q("126.000004 deg")),
    Sketcher.Constraint("Angle", 11, Q("-154.000009 deg")),
    Sketcher.Constraint("Distance", 6, Q("3 mm")),
    Sketcher.Constraint("DistanceX", -1, 1, 1, 2, Q("23 mm")),
    Sketcher.Constraint("DistanceY", -1, 1, 21, 2, Q("23 mm")),
    Sketcher.Constraint("Radius", 12, Q("19.999498 mm")),
    Sketcher.Constraint("Radius", 0, Q("19.99998 mm")),
    Sketcher.Constraint("Radius", 8, Q("20.000462 mm")),
    Sketcher.Constraint("DistanceX", 8, 3, -1, 1, Q("0.000411 mm")),
    Sketcher.Constraint("DistanceY", 8, 3, -1, 1, Q("0.000211 mm")),
    Sketcher.Constraint("DistanceX", 16, 3, -1, 1, Q("0.000211 mm")),
    Sketcher.Constraint("DistanceY", 16, 3, -1, 1, Q("0.000411 mm")),
    Sketcher.Constraint("DistanceY", -1, 1, 3, 2, Q("2.04751 mm")),
    Sketcher.Constraint("DistanceX", -1, 1, 8, 2, Q("17.298822 mm")),
    Sketcher.Constraint("DistanceX", -1, 1, 12, 2, Q("13.350409 mm")),
])
sketch1.setExpression("Constraints[197]", "Params.sketch1_diameter")
sketch1.setExpression("Constraints[198]", "Params.sketch1_width")
sketch1.setExpression("Constraints[206]", "Params.sketch1_length")
pad1 = body.newObject("PartDesign::Pad", "Pad")
pad1.Profile = sketch1
pad1.setExpression("Length", "Params.pad1_length")

sketch2 = body.newObject("Sketcher::SketchObject", "Sketch001")
sketch2.AttachmentSupport = (doc.getObject("XZ_Plane"), [""])
sketch2.MapMode = "FlatFace"
sketch2.AttachmentOffset = App.Placement(App.Vector(0, 0, 5), App.Rotation())
sketch2.addGeometry(Part.Circle(App.Vector(0, 8, 0), App.Vector(0, 0, 1), 1), False)
sketch2.addConstraint([
    Sketcher.Constraint("PointOnObject", 0, 3, -2),
    Sketcher.Constraint("Diameter", 0, Q("2 mm")),
    Sketcher.Constraint("DistanceY", -1, 1, 0, 3, Q("8 mm")),
])
sketch2.setExpression("Constraints[1]", "Params.sketch2_diameter")
pad2 = body.newObject("PartDesign::Pad", "Pad001")
pad2.Profile = sketch2
pad2.setExpression("Length", "Params.pad2_length")

doc.recompute()
